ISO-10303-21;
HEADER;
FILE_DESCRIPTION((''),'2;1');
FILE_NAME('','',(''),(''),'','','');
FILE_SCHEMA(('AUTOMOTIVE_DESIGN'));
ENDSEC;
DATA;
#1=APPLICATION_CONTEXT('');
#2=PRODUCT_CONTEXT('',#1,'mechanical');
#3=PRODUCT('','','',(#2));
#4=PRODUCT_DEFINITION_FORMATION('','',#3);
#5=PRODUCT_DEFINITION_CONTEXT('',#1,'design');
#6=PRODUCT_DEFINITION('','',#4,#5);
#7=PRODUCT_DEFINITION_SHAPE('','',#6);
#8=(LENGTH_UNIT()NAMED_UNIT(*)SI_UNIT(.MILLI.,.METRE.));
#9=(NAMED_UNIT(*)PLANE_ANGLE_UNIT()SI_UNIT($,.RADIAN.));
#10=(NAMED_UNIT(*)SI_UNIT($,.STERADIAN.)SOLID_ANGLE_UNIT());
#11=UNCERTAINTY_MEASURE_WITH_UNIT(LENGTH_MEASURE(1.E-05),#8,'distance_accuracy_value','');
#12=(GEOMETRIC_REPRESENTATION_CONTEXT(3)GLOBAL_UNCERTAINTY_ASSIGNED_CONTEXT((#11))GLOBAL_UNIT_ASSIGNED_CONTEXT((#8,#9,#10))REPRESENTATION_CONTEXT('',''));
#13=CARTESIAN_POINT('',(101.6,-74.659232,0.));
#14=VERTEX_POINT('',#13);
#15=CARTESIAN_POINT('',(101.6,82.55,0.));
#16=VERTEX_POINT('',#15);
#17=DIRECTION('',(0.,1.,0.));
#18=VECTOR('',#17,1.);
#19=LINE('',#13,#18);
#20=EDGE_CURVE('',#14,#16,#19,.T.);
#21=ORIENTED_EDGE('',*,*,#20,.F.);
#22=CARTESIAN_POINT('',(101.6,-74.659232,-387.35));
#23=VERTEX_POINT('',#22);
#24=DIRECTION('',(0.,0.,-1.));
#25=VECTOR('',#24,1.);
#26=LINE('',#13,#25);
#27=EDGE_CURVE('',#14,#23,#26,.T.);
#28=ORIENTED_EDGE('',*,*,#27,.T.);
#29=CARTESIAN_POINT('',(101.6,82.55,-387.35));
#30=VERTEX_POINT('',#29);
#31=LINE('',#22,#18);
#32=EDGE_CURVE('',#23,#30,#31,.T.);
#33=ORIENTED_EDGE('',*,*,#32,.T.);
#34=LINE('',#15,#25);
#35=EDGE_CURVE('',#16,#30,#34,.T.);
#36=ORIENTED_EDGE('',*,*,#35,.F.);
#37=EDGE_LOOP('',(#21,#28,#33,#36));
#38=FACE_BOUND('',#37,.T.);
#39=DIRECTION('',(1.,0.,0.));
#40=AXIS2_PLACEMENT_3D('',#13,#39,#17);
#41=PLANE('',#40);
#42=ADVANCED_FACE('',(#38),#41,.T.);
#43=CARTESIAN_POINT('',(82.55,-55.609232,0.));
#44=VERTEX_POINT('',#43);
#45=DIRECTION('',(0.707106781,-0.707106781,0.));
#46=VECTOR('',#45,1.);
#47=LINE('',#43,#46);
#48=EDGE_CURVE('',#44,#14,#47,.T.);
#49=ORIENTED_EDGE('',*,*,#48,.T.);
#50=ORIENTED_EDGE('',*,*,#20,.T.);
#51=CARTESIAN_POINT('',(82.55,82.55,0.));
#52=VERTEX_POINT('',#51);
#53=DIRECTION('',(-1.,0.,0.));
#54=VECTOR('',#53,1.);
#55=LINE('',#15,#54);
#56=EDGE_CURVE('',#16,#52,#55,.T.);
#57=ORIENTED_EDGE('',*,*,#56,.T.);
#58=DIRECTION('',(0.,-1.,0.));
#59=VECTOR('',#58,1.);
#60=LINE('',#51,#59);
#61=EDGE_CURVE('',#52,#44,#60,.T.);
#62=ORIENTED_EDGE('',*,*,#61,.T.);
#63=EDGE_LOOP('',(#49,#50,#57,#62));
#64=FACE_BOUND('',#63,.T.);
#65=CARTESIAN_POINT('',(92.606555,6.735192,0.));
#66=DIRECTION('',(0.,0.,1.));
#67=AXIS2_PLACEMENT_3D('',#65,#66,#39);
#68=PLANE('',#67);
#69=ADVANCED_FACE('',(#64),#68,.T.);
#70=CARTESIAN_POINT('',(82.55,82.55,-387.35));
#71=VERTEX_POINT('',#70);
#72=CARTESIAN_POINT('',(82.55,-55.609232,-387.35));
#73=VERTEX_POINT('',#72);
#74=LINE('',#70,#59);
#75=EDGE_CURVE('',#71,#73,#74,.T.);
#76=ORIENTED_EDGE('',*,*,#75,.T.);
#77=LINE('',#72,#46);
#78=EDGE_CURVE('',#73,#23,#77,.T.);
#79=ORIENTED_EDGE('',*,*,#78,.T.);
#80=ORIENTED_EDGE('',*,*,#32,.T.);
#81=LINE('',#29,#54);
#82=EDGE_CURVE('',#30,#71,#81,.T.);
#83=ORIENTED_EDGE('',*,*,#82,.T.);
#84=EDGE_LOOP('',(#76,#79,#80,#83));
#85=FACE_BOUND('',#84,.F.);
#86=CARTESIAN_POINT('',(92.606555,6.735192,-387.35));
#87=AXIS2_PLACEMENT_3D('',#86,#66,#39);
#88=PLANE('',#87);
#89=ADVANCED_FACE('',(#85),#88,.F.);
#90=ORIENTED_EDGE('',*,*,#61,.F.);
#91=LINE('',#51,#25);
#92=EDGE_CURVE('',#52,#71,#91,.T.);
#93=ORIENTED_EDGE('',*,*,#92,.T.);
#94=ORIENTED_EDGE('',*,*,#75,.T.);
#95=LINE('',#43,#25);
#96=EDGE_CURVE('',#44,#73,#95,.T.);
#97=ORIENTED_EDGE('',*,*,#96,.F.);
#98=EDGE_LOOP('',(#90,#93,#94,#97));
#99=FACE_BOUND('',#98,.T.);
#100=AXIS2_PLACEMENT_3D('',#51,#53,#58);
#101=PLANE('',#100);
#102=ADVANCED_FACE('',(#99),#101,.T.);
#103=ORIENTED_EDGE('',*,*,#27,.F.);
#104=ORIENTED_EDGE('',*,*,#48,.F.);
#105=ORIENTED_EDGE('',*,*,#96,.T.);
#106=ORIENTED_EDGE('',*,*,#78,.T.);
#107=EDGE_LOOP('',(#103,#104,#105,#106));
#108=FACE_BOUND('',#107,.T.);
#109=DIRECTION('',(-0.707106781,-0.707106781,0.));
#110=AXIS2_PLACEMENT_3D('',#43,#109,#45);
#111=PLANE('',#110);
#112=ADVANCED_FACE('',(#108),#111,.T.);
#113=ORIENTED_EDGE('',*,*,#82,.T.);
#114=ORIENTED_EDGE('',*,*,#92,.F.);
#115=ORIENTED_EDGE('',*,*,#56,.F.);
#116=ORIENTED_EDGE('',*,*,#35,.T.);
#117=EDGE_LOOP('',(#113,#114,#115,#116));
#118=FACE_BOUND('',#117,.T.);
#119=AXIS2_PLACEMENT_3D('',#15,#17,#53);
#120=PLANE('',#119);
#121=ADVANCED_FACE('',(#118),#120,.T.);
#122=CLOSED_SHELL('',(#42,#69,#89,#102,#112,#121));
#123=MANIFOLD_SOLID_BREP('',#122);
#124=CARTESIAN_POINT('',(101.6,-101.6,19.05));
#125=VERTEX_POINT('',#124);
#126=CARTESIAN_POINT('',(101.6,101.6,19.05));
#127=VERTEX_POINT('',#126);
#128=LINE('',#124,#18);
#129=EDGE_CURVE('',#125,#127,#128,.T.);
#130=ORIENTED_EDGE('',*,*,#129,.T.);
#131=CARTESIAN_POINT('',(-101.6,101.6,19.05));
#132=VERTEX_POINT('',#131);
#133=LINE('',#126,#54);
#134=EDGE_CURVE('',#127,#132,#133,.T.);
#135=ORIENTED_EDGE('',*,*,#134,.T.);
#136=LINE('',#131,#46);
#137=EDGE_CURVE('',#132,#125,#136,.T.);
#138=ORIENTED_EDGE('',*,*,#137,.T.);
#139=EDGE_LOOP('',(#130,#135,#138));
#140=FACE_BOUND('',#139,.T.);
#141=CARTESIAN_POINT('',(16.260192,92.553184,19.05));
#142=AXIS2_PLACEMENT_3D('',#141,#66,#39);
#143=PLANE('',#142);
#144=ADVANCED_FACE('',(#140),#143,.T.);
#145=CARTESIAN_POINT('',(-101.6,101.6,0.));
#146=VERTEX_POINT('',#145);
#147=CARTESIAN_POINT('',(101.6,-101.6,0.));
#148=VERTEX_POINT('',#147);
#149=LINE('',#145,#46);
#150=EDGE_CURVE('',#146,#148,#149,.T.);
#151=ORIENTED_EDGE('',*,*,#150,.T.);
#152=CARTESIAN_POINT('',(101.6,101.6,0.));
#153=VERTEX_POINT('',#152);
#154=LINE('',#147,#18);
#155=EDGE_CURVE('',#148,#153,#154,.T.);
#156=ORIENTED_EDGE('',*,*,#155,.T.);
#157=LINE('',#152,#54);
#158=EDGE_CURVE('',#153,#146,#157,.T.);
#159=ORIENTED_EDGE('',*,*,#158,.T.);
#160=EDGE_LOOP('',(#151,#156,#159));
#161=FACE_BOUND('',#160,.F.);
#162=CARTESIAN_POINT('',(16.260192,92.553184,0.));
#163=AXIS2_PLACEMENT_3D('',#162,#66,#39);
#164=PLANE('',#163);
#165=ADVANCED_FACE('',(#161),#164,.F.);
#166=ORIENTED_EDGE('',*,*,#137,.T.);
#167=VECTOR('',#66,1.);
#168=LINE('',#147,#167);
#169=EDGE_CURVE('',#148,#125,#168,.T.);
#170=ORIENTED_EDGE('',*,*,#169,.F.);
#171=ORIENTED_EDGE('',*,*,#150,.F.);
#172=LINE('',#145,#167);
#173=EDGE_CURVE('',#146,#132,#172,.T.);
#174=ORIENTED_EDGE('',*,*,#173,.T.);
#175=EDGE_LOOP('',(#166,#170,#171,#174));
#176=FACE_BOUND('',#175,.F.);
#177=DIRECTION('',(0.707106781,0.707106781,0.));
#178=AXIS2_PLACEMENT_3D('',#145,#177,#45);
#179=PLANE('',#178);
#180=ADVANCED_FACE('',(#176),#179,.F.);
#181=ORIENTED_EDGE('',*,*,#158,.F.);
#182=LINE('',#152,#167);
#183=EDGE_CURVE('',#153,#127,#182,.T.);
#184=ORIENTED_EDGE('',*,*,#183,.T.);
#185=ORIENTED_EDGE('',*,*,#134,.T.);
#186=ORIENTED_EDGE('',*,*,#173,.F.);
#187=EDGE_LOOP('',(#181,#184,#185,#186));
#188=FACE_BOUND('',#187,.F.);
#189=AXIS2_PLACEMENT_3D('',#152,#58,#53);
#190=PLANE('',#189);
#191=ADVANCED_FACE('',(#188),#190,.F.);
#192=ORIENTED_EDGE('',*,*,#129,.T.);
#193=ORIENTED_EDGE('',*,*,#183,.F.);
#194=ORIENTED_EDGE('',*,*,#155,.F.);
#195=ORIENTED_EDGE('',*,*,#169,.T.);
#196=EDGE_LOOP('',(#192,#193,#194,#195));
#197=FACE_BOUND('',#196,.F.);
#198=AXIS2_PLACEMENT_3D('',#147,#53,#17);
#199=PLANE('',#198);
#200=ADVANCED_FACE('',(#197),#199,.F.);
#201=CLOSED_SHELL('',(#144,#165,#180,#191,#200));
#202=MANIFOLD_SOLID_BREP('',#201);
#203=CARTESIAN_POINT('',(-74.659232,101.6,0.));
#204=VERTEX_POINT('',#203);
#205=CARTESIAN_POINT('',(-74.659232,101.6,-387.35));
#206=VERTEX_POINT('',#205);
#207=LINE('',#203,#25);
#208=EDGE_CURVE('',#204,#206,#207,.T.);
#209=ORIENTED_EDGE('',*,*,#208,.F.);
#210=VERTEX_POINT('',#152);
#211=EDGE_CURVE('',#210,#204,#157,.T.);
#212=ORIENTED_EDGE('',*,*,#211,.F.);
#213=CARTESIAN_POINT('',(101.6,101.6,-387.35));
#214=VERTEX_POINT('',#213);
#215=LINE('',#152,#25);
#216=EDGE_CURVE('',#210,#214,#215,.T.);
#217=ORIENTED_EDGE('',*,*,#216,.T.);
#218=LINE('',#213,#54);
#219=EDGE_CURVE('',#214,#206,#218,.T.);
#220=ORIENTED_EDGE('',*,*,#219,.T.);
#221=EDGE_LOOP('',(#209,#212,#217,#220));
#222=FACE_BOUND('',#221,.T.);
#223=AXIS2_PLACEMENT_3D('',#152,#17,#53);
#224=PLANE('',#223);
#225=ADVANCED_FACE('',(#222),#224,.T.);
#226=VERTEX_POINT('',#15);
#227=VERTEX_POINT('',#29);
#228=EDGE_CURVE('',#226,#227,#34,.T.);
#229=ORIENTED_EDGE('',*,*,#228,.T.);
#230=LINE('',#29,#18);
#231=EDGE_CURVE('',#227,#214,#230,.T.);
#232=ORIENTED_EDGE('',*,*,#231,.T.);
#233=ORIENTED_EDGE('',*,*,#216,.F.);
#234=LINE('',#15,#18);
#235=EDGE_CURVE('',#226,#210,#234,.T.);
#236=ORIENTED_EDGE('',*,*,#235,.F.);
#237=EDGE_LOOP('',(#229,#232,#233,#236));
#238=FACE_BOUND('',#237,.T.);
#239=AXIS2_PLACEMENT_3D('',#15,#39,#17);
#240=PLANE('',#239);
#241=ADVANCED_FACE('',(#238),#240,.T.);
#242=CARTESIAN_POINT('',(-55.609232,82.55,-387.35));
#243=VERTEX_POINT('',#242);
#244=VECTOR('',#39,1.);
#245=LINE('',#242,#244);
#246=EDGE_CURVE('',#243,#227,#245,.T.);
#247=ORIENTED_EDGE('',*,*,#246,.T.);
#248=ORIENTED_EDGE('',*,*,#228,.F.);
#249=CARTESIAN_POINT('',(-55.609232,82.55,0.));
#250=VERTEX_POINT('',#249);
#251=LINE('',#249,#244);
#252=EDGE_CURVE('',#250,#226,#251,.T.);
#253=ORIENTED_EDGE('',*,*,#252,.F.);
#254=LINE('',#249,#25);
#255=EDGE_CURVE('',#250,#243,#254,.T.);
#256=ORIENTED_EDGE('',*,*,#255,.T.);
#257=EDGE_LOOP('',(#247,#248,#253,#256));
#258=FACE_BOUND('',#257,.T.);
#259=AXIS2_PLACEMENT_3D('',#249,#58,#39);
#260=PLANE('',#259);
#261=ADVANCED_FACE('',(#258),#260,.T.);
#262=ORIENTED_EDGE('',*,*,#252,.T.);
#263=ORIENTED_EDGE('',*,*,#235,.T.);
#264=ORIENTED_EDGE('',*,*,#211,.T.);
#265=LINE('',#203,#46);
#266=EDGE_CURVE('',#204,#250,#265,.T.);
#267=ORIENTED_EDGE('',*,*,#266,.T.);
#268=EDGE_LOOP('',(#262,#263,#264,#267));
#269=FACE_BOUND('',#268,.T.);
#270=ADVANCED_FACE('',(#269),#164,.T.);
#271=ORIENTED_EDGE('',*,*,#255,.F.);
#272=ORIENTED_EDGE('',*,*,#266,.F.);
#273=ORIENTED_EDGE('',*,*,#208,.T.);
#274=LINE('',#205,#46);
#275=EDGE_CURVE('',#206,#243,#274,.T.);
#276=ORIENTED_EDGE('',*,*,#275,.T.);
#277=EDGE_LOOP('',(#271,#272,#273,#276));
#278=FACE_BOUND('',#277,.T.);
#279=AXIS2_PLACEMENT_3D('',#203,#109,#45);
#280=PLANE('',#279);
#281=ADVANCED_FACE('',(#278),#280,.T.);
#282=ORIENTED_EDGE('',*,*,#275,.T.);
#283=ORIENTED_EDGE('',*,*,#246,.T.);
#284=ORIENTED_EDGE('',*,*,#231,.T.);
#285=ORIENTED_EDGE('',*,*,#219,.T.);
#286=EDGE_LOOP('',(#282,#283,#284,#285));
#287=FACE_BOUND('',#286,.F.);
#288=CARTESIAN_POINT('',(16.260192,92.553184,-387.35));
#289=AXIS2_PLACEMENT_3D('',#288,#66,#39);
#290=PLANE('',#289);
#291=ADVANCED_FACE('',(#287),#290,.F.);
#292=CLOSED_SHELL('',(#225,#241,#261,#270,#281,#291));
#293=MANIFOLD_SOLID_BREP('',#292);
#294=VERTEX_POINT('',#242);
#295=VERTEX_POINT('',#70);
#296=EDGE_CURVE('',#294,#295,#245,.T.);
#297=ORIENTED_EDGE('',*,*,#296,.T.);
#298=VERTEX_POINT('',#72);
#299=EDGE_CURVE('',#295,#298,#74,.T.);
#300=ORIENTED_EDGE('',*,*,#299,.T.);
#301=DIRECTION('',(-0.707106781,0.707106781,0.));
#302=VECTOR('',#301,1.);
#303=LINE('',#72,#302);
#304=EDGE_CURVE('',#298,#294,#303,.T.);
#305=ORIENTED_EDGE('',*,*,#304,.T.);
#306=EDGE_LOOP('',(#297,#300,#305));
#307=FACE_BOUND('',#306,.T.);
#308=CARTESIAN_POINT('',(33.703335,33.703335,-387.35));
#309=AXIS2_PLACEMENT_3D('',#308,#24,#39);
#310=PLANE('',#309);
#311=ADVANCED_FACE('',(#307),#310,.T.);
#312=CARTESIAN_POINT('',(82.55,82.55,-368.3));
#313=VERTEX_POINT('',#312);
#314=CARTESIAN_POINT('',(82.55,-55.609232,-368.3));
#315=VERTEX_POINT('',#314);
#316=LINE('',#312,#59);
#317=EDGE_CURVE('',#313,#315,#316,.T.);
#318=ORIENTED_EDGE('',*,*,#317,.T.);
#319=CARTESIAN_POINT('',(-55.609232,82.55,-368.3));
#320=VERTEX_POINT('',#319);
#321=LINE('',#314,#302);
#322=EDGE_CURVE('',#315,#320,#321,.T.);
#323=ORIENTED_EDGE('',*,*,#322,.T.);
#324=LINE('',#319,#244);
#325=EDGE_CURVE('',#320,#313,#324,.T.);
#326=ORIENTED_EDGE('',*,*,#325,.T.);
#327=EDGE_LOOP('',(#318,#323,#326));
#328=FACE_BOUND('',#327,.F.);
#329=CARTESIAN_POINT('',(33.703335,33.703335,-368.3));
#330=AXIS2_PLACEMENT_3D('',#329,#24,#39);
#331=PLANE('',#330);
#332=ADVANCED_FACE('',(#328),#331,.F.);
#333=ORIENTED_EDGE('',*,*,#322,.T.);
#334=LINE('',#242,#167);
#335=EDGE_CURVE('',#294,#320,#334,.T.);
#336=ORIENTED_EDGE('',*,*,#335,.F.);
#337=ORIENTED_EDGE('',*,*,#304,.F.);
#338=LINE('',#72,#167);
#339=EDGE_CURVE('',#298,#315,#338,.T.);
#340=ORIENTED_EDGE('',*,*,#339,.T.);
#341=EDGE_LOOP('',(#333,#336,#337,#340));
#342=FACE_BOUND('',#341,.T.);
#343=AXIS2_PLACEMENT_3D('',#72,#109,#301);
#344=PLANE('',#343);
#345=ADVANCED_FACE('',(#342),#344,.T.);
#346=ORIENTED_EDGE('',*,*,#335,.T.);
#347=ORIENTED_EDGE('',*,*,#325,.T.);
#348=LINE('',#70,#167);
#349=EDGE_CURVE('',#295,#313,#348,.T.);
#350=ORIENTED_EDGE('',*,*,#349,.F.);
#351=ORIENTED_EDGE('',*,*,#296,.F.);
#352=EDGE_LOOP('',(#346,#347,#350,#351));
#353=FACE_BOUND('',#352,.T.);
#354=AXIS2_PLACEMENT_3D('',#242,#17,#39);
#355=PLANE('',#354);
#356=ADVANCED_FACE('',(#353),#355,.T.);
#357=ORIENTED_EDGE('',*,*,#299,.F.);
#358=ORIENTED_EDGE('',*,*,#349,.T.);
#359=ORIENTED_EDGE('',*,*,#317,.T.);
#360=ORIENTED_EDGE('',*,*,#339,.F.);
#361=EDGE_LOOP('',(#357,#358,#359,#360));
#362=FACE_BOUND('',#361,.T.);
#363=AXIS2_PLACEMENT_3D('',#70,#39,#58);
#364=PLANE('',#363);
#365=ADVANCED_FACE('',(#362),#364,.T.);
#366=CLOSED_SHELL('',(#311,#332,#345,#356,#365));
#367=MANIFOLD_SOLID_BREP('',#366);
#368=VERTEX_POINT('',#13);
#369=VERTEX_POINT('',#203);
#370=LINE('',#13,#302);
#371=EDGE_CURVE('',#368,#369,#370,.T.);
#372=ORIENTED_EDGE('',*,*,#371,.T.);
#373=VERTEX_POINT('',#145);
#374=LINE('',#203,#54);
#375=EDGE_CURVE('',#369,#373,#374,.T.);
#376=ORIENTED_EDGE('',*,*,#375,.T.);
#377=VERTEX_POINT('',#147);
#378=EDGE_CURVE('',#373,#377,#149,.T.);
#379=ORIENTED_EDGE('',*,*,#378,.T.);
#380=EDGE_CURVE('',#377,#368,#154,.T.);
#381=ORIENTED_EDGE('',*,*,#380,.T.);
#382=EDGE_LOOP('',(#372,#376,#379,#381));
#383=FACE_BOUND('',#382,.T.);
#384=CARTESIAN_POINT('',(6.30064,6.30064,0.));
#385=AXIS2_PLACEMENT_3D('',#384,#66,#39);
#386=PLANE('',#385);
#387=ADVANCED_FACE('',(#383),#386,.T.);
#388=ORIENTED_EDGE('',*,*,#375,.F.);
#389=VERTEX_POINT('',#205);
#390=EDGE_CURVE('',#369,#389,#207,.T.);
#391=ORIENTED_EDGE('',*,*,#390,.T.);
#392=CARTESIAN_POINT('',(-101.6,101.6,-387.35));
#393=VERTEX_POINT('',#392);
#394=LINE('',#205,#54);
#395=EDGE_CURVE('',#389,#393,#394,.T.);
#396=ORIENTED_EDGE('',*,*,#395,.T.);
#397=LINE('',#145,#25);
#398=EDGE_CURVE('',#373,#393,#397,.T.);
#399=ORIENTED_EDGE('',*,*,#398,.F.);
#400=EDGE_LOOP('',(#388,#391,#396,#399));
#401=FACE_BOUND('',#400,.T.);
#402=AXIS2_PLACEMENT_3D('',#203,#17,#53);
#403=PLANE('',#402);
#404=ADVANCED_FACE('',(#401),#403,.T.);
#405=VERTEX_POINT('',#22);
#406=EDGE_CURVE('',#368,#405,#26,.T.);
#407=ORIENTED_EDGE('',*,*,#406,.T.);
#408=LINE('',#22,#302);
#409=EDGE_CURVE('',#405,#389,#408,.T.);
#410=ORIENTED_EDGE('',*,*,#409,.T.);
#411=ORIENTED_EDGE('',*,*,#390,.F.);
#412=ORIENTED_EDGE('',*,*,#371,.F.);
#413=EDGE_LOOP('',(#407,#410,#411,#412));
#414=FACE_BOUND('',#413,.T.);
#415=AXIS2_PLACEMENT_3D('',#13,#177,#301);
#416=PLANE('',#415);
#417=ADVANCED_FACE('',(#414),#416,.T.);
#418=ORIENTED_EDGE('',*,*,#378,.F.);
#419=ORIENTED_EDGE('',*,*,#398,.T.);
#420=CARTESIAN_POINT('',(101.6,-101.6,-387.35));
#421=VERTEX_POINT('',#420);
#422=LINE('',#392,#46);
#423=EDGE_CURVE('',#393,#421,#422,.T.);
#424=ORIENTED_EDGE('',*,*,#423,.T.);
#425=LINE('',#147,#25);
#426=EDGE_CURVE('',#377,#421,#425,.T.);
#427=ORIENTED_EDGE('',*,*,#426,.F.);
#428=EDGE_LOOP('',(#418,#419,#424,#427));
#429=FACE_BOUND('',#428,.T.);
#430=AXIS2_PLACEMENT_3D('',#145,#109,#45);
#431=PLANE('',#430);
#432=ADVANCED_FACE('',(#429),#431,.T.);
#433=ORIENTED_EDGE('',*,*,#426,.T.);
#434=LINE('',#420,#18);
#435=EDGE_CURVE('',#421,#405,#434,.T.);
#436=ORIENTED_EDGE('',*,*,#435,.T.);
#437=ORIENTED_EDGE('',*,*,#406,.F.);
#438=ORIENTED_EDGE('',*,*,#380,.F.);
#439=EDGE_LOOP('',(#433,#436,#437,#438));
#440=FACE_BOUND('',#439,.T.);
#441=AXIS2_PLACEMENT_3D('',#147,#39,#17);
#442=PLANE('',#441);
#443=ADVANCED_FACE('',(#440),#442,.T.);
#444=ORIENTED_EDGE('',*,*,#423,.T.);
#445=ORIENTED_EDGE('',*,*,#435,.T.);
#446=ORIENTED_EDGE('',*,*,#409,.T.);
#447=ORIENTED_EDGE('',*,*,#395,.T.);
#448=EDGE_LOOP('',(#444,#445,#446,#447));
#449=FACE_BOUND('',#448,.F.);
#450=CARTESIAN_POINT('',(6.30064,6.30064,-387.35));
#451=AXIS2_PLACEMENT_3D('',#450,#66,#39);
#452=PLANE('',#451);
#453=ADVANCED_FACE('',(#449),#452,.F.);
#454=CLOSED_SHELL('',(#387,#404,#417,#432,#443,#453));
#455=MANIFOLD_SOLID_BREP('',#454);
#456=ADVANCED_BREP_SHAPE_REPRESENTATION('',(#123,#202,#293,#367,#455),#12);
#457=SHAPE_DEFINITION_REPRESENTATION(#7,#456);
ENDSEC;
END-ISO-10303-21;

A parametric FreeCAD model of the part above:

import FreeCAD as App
import Part
import Sketcher
Q = App.Units.Quantity


def add_polygon(sketch, points):
    """Adds a closed chain of lines whose ends are joined by coincident constraints."""
    first, n = sketch.GeometryCount, len(points)
    for a, b in zip(points, points[1:] + points[:1]):
        sketch.addGeometry(Part.LineSegment(App.Vector(*a, 0), App.Vector(*b, 0)), False)
    for i in range(n):
        sketch.addConstraint(Sketcher.Constraint("Coincident", first + i, 2, first + (i + 1) % n, 1))

doc = App.newDocument("Part")
body = doc.addObject("PartDesign::Body", "Body")

# Sketch on XY plane
sketch1 = body.newObject("Sketcher::SketchObject", "Sketch")
sketch1.AttachmentSupport = (doc.getObject("XY_Plane"), [""])
sketch1.MapMode = "FlatFace"
add_polygon(sketch1, [(-75, 102), (-102, 102), (102, -102), (102, -75)])  # lines 0-3
sketch1.addConstraint([
    Sketcher.Constraint("Horizontal", 0),
    Sketcher.Constraint("Vertical", 2),
    Sketcher.Constraint("Symmetric", 0, 2, 1, 2, -1, 1),
    Sketcher.Constraint("Parallel", 1, 3),
    Sketcher.Constraint("Equal", 0, 2),
    Sketcher.Constraint("DistanceX", 0, 2, -1, 1, Q("4 in")),
    Sketcher.Constraint("DistanceX", 0, 2, 0, 1, 26.940768),
])
pad1 = body.newObject("PartDesign::Pad", "Pad")
pad1.Profile = sketch1
pad1.Length = Q("15.25 in")
pad1.Reversed = True
body2 = doc.addObject("PartDesign::Body", "Body001")

# Sketch on XY plane
sketch2 = body2.newObject("Sketcher::SketchObject", "Sketch001")
sketch2.AttachmentSupport = (doc.getObject("XY_Plane001"), [""])
sketch2.MapMode = "FlatFace"
add_polygon(sketch2, [(102, 83), (102, 102), (-75, 102), (-56, 83)])  # lines 0-3
sketch2.addConstraint([
    Sketcher.Constraint("Vertical", 0),
    Sketcher.Constraint("Horizontal", 1),
    Sketcher.Constraint("Horizontal", 3),
    Sketcher.Constraint("DistanceX", -1, 1, 0, 2, Q("4 in")),
    Sketcher.Constraint("DistanceY", -1, 1, 0, 2, Q("4 in")),
    Sketcher.Constraint("Angle", 2, Q("-45 deg")),
    Sketcher.Constraint("DistanceY", 0, 1, 0, 2, Q("0.75 in")),
    Sketcher.Constraint("DistanceX", 1, 2, 1, 1, 176.259232),
])
pad2 = body2.newObject("PartDesign::Pad", "Pad001")
pad2.Profile = sketch2
pad2.Length = Q("15.25 in")
pad2.Reversed = True
body3 = doc.addObject("PartDesign::Body", "Body002")

# Sketch on XY plane
sketch3 = body3.newObject("Sketcher::SketchObject", "Sketch002")
sketch3.AttachmentSupport = (doc.getObject("XY_Plane002"), [""])
sketch3.MapMode = "FlatFace"
add_polygon(sketch3, [(102, -75), (102, 83), (83, 83), (83, -56)])  # lines 0-3
sketch3.addConstraint([
    Sketcher.Constraint("Vertical", 0),
    Sketcher.Constraint("Horizontal", 1),
    Sketcher.Constraint("Vertical", 2),
    Sketcher.Constraint("DistanceX", -1, 1, 0, 2, Q("4 in")),
    Sketcher.Constraint("Angle", 3, Q("-45 deg")),
    Sketcher.Constraint("DistanceX", 1, 2, 1, 1, Q("0.75 in")),
    Sketcher.Constraint("DistanceY", -1, 1, 0, 2, Q("3.25 in")),
    Sketcher.Constraint("DistanceY", 0, 1, 0, 2, 157.209232),
])
pad3 = body3.newObject("PartDesign::Pad", "Pad002")
pad3.Profile = sketch3
pad3.Length = Q("15.25 in")
pad3.Reversed = True
body4 = doc.addObject("PartDesign::Body", "Body003")

# Sketch on XY plane
sketch4 = body4.newObject("Sketcher::SketchObject", "Sketch003")
sketch4.AttachmentSupport = (doc.getObject("XY_Plane003"), [""])
sketch4.MapMode = "FlatFace"
add_polygon(sketch4, [(102, 102), (-102, 102), (102, -102)])  # lines 0-2
sketch4.addConstraint([
    Sketcher.Constraint("Horizontal", 0),
    Sketcher.Constraint("Vertical", 2),
    Sketcher.Constraint("Symmetric", 0, 2, 1, 2, -1, 1),
    Sketcher.Constraint("Equal", 0, 2),
    Sketcher.Constraint("DistanceX", 0, 2, 0, 1, Q("8 in")),
])
pad4 = body4.newObject("PartDesign::Pad", "Pad003")
pad4.Profile = sketch4
pad4.Length = Q("0.75 in")
body5 = doc.addObject("PartDesign::Body", "Body004")

# Sketch on XY plane
sketch5 = body5.newObject("Sketcher::SketchObject", "Sketch004")
sketch5.AttachmentSupport = (doc.getObject("XY_Plane004"), [""])
sketch5.MapMode = "FlatFace"
sketch5.AttachmentOffset = App.Placement(App.Vector(0, 0, -15.25 * 25.4), App.Rotation())
add_polygon(sketch5, [(83, 83), (83, -56), (-56, 83)])  # lines 0-2
sketch5.addConstraint([
    Sketcher.Constraint("Vertical", 0),
    Sketcher.Constraint("Horizontal", 2),
    Sketcher.Constraint("Equal", 2, 0),
    Sketcher.Constraint("DistanceX", -1, 1, 0, 2, Q("3.25 in")),
    Sketcher.Constraint("DistanceY", -1, 1, 1, 2, Q("3.25 in")),
    Sketcher.Constraint("DistanceX", 2, 1, 2, 2, 138.159232),
])
pad5 = body5.newObject("PartDesign::Pad", "Pad004")
pad5.Profile = sketch5
pad5.Length = Q("0.75 in")

doc.recompute()
